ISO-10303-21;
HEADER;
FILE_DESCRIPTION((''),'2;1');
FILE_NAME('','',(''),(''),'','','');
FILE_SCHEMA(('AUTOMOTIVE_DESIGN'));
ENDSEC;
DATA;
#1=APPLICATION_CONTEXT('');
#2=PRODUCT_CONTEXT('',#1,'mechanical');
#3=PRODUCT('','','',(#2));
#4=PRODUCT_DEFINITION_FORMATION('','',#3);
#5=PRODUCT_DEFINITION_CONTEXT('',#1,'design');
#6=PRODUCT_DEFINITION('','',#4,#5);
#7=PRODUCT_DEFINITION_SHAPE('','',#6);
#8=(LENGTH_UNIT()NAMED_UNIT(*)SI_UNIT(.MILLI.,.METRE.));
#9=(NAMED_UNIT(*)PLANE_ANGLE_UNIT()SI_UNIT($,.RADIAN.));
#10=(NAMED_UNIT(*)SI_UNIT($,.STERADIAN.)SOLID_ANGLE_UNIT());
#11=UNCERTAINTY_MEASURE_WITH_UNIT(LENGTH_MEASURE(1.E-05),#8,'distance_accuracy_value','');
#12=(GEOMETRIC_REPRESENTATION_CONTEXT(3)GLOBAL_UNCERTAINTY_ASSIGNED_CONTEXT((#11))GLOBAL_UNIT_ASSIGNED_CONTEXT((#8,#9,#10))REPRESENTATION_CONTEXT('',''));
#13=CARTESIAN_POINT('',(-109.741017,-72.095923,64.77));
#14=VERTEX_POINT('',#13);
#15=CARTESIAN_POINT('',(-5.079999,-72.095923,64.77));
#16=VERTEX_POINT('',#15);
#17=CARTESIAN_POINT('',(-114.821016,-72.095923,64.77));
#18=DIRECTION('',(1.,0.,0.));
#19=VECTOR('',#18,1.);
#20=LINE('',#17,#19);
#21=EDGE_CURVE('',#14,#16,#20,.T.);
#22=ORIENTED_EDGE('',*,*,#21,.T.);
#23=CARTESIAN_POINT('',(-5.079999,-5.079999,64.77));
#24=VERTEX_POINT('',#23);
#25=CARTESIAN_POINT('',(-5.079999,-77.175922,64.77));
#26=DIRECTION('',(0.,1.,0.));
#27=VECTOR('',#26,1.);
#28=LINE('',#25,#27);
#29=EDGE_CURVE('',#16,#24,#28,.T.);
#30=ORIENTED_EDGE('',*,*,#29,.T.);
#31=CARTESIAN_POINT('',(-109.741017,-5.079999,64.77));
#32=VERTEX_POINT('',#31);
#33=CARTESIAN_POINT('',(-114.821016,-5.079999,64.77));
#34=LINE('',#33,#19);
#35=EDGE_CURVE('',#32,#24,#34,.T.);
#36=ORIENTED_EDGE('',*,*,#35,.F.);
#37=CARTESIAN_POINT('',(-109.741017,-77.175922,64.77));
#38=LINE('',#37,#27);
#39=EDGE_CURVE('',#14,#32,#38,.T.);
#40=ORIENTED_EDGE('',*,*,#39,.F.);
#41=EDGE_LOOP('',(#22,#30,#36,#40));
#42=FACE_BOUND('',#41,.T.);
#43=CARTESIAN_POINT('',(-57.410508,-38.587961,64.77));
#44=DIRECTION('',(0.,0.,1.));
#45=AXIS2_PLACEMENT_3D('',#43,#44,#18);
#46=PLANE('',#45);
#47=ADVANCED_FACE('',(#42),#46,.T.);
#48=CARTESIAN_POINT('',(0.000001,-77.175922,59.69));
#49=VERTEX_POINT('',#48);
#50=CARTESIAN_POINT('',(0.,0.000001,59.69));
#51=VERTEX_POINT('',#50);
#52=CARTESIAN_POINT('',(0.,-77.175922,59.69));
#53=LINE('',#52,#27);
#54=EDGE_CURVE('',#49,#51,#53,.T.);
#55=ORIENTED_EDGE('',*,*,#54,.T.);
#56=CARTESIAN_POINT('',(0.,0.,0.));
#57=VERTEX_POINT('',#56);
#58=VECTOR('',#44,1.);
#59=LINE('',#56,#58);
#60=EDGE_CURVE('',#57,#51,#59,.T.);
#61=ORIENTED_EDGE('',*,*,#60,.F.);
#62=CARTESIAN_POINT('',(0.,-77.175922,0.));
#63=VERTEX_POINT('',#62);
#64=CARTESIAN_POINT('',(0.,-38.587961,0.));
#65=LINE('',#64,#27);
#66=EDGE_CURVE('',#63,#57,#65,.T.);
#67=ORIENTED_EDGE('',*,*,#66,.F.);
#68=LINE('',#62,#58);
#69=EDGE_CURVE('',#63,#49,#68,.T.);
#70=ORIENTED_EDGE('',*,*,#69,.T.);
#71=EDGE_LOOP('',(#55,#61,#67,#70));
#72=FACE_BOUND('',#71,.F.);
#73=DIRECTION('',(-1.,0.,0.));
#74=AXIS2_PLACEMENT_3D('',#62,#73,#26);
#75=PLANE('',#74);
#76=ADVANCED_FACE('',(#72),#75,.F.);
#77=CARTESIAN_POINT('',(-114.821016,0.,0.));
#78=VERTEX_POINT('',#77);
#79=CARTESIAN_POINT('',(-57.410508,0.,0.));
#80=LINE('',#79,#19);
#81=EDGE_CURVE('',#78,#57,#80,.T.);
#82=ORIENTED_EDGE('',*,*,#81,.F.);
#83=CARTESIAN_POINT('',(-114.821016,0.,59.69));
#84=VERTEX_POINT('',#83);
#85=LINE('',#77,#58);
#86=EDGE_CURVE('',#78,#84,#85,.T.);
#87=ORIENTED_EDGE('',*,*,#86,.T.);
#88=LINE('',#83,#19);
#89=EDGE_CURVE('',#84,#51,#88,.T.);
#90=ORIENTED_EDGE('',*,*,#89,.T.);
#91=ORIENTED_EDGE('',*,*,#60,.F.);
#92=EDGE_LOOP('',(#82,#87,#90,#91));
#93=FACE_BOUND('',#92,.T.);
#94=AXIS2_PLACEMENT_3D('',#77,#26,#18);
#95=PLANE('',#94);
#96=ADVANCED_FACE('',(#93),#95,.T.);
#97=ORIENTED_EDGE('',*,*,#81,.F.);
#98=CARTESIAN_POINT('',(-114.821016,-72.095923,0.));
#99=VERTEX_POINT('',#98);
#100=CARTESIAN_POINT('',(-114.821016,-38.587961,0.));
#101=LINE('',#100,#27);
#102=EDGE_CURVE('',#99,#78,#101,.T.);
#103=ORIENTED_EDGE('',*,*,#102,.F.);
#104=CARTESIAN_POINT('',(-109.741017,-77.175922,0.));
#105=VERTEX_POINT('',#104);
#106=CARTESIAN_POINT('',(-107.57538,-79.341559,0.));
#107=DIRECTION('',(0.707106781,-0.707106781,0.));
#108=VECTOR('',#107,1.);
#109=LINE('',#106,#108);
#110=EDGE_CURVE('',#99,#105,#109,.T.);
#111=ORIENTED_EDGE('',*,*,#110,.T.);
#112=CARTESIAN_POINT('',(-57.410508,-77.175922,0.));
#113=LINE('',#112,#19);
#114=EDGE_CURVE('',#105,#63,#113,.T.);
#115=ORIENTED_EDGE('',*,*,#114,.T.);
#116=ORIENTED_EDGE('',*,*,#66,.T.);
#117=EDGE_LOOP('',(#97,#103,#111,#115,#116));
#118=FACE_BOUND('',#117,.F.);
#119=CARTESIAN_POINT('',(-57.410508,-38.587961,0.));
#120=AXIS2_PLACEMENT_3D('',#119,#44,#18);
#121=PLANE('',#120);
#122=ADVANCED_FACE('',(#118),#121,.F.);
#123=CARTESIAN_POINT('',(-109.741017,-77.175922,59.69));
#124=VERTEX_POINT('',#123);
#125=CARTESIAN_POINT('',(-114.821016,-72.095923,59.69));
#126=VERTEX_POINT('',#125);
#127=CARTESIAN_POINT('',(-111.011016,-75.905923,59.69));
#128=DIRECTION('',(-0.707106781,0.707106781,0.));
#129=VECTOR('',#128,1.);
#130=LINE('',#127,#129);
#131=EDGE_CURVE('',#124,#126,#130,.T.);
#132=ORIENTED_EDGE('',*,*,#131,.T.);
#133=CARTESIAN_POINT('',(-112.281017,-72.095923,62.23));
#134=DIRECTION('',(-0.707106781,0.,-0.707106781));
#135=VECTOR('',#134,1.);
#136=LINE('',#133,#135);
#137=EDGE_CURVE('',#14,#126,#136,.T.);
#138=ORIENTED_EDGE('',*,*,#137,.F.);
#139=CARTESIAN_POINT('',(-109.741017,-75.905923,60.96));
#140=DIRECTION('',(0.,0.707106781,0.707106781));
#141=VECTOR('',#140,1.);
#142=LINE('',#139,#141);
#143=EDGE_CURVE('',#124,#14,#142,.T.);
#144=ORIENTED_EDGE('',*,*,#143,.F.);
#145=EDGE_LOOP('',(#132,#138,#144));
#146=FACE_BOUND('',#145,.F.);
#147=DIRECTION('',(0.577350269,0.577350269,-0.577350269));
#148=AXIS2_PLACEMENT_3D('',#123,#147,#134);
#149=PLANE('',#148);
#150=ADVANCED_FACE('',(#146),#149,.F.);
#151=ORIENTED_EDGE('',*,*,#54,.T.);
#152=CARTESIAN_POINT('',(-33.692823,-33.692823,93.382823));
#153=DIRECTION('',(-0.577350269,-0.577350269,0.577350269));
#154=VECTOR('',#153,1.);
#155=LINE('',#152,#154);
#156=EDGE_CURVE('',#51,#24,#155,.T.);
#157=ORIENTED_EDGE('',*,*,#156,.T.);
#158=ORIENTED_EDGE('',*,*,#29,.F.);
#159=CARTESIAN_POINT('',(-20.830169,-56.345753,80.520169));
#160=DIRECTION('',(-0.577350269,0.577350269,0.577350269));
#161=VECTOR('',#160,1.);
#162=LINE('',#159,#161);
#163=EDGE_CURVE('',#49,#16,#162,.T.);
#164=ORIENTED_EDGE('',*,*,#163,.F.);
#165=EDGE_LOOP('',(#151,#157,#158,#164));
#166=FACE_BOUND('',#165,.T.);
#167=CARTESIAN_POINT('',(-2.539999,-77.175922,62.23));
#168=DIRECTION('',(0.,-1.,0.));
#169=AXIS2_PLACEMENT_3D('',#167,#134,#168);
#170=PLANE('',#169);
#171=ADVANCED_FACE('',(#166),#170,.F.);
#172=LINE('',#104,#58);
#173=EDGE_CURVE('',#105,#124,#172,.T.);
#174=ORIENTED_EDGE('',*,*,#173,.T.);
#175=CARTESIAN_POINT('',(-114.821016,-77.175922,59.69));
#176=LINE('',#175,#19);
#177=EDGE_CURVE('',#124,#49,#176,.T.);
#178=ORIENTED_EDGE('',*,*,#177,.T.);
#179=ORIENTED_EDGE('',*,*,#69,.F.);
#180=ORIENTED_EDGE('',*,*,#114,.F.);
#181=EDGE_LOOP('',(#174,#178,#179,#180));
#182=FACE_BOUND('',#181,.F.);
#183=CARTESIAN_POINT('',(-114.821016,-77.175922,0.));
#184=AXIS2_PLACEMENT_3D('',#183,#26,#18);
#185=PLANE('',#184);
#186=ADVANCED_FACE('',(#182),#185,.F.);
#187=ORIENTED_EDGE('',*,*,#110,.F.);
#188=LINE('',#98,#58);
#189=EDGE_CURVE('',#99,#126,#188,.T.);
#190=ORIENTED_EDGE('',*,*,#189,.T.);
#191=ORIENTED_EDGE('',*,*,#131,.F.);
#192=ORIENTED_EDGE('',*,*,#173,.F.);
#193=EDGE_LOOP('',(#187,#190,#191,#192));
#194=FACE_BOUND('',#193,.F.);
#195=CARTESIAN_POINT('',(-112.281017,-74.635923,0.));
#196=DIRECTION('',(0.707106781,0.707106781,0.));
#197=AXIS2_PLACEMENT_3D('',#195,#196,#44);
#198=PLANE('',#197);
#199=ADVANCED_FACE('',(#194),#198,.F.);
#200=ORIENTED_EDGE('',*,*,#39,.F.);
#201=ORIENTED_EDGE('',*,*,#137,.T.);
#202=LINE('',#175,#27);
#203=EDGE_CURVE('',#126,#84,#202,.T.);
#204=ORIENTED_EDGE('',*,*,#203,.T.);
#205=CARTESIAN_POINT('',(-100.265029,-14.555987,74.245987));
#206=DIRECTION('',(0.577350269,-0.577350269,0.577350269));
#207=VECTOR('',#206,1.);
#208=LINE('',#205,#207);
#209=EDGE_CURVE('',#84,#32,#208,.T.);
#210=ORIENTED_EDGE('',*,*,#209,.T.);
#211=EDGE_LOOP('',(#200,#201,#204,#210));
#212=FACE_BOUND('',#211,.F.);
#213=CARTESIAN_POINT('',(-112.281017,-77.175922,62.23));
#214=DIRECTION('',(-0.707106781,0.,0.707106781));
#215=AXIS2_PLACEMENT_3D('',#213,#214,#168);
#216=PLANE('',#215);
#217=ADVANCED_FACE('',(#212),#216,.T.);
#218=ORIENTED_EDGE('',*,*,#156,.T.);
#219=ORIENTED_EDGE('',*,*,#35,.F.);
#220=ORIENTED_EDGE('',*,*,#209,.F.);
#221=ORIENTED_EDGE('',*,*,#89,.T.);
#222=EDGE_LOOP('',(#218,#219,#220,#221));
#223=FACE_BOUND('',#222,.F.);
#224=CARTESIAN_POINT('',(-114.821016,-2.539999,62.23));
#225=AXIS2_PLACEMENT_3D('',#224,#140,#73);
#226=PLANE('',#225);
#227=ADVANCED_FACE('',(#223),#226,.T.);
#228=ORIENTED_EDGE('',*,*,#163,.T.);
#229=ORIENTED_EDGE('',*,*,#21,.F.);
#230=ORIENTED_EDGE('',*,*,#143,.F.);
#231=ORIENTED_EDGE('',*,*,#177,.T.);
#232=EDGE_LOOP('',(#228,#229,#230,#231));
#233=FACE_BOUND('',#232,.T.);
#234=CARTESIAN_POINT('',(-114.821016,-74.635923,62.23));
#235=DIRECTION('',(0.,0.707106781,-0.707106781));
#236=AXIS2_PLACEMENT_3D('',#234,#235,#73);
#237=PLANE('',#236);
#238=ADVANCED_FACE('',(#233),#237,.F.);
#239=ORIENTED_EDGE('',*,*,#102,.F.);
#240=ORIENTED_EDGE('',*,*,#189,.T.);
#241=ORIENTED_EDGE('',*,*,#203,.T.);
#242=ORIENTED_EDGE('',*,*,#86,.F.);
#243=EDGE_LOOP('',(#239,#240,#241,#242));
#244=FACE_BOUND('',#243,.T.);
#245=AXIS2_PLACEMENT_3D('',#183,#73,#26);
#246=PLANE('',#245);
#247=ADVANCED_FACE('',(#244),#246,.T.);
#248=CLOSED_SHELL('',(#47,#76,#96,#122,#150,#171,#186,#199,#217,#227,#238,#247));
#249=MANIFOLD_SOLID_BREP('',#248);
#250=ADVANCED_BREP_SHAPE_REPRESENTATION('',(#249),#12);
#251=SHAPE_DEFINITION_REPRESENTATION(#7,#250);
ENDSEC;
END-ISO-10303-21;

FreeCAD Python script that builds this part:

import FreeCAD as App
import Part
import Sketcher


def edges_at(feature, points):
    """Names of the edges that pass closest to the given points."""
    edges = feature.Shape.Edges
    near = lambda p: min(range(len(edges)), key=lambda i: edges[i].distToShape(Part.Vertex(*p))[0])
    return sorted({f"Edge{near(p) + 1}" for p in points})

doc = App.newDocument("Part")
params = doc.addObject("Spreadsheet::Sheet", "Params")
for row, (alias, value) in enumerate([
    ("pad1_length", "2.55 in"),
    ("chamfer_size", "0.2 in"),
], start=1):
    params.set(f"A{row}", alias)
    params.set(f"B{row}", "=" + value)
    params.setAlias(f"B{row}", alias)

body = doc.addObject("PartDesign::Body", "Body")

sketch1 = doc.addObject("Sketcher::SketchObject", "Sketch")
body.addObject(sketch1)
sketch1.AttachmentSupport = (doc.XY_Plane, [""])
sketch1.MapMode = "FlatFace"
sketch1.addGeometry(Part.LineSegment(App.Vector(-115, 0, 0), App.Vector(-115, -77, 0)), False)
sketch1.addGeometry(Part.LineSegment(App.Vector(-115, -77, 0), App.Vector(0, -77, 0)), False)
sketch1.addGeometry(Part.LineSegment(App.Vector(0, -77, 0), App.Vector(0, 0, 0)), False)
sketch1.addGeometry(Part.LineSegment(App.Vector(0, 0, 0), App.Vector(-115, 0, 0)), False)
sketch1.addConstraint(Sketcher.Constraint("Coincident", 0, 2, 1, 1))
sketch1.addConstraint(Sketcher.Constraint("Coincident", 1, 2, 2, 1))
sketch1.addConstraint(Sketcher.Constraint("Coincident", 2, 2, 3, 1))
sketch1.addConstraint(Sketcher.Constraint("Coincident", 3, 2, 0, 1))
sketch1.addConstraint(Sketcher.Constraint("Vertical", 0))
sketch1.addConstraint(Sketcher.Constraint("Horizontal", 1))
sketch1.addConstraint(Sketcher.Constraint("Vertical", 2))
sketch1.addConstraint(Sketcher.Constraint("Horizontal", 3))
sketch1.addConstraint(Sketcher.Constraint("Coincident", 2, 2, -1, 1))
sketch1.addConstraint(Sketcher.Constraint("DistanceX", 1, 1, 1, 2, 114.821017))
sketch1.addConstraint(Sketcher.Constraint("DistanceY", 0, 2, 0, 1, 77.175923))
pad1 = doc.addObject("PartDesign::Pad", "Pad")
body.addObject(pad1)
pad1.Profile = sketch1
pad1.setExpression("Length", "Params.pad1_length")
doc.recompute()

chamfer = doc.addObject("PartDesign::Chamfer", "Chamfer")
body.addObject(chamfer)
chamfer.Base = (pad1, edges_at(pad1, [
    (-114.821, -38.588, 64.77),
    (-57.411, 0, 64.77),
    (0, -38.588, 64.77),
    (-57.411, -77.176, 64.77),
    (-114.821, -77.176, 32.385),
]))
chamfer.setExpression("Size", "Params.chamfer_size")

doc.recompute()
